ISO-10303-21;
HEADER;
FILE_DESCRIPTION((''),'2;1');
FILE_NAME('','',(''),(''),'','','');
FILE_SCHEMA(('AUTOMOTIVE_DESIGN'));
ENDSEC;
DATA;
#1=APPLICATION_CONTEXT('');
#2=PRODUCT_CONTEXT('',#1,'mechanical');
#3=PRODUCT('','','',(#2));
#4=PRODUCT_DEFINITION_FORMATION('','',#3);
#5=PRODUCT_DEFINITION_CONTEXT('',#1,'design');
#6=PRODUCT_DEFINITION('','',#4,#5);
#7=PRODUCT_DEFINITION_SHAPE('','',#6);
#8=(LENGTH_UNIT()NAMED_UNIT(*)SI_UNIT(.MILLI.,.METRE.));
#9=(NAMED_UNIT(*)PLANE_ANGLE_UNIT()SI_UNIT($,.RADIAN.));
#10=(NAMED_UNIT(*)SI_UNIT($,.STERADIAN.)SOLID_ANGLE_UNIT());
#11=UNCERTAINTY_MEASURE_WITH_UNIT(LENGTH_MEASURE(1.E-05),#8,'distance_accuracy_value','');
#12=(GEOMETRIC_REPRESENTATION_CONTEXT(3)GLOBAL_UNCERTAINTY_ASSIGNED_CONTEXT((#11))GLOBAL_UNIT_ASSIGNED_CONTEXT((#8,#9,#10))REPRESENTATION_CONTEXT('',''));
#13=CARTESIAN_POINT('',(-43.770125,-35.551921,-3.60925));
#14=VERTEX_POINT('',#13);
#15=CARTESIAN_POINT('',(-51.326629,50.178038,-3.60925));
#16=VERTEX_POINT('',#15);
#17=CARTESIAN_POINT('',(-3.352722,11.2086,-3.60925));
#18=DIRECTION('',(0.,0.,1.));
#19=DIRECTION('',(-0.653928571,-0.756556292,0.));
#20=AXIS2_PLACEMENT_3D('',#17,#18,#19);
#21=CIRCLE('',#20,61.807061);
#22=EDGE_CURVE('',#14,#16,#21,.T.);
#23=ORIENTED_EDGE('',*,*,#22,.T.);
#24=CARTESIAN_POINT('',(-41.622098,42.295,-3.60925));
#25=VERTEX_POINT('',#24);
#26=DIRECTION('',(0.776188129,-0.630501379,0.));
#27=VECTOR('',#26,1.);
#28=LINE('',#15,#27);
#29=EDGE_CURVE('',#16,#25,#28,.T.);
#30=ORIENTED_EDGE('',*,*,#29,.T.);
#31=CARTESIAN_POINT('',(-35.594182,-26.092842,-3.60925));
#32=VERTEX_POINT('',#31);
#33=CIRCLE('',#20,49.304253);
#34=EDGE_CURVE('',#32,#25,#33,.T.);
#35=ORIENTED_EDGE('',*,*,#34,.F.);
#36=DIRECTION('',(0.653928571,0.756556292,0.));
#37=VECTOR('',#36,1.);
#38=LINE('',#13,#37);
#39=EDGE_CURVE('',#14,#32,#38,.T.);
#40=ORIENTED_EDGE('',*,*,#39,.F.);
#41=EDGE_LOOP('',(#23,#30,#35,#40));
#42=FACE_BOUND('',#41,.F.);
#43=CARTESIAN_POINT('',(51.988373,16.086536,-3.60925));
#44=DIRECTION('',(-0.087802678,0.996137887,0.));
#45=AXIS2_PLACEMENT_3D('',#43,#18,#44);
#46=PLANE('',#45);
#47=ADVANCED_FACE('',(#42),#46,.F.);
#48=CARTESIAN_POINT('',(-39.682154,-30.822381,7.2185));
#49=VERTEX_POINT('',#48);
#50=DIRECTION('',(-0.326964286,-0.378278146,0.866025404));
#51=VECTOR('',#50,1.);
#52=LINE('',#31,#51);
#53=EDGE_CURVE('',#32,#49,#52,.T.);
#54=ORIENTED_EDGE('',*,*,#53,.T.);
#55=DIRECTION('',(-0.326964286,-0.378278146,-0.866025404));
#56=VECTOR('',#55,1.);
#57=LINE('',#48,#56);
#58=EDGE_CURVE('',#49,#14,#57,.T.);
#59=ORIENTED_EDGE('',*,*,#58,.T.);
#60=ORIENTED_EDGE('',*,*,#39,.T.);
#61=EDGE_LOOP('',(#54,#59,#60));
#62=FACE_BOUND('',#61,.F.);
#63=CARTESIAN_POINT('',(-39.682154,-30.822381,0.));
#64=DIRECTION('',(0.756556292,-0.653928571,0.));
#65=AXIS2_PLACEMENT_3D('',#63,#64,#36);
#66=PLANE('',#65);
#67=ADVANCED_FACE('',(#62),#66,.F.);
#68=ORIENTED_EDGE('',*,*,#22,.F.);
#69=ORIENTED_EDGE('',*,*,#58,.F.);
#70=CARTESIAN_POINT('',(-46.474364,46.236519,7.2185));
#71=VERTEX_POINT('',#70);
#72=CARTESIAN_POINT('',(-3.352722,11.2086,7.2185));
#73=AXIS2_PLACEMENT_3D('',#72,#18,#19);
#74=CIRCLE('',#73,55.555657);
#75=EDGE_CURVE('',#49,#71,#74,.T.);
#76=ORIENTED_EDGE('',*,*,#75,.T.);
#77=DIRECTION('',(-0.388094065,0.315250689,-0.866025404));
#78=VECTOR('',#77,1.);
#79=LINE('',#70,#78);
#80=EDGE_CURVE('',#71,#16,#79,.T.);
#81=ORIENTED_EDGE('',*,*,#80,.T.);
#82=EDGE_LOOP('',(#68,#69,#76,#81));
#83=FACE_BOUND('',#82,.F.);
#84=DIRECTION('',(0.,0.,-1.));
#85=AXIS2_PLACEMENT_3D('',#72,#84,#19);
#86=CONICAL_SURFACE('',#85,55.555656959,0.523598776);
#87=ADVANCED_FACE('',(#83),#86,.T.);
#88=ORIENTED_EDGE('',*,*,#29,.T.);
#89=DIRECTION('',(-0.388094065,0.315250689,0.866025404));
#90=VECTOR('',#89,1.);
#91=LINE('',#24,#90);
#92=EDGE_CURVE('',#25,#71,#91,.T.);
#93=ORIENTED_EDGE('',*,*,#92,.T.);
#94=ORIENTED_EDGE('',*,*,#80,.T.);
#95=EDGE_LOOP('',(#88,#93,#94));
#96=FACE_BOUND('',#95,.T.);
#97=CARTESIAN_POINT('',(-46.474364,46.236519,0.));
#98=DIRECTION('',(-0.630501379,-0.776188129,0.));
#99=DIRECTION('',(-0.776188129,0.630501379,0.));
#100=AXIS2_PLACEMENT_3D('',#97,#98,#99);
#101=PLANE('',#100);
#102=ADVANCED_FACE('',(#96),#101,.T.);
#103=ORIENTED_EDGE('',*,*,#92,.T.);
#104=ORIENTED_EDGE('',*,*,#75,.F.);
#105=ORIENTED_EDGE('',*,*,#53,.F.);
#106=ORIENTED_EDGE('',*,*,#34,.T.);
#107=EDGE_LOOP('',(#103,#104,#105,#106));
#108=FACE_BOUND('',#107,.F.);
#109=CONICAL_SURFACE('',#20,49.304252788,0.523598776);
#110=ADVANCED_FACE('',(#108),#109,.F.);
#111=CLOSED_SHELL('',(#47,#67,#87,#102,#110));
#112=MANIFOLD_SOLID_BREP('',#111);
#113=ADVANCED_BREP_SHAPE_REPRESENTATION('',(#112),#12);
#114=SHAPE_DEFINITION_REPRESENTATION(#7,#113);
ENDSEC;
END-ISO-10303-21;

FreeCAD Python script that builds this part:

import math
import FreeCAD as App
import Part
import Sketcher
from FreeCAD import Vector
Q = App.Units.Quantity


def add_polygon(sketch, points):
    """Adds a closed chain of lines whose ends are joined by coincident constraints."""
    first, n = sketch.GeometryCount, len(points)
    for a, b in zip(points, points[1:] + points[:1]):
        sketch.addGeometry(Part.LineSegment(App.Vector(*a, 0), App.Vector(*b, 0)), False)
    for i in range(n):
        sketch.addConstraint(Sketcher.Constraint("Coincident", first + i, 2, first + (i + 1) % n, 1))

doc = App.newDocument("Part")
body = doc.addObject("PartDesign::Body", "Body")

sketch1 = doc.addObject("Sketcher::SketchObject", "Sketch")
body.addObject(sketch1)
sketch1.Placement = App.Placement(Vector(-7.464296, 6.451756, 0), App.Rotation(Vector(0.653928571, 0.756556292, 0), Vector(0, 0, 0.999999999), Vector(0.756556292, -0.653928571, 0), "ZXY"))
add_polygon(sketch1, [(-43, -4), (-49, 7), (-56, -4)])
sketch1.addConstraint(Sketcher.Constraint("Horizontal", 2))
sketch1.addConstraint(Sketcher.Constraint("Equal", 0, 1))
sketch1.addConstraint(Sketcher.Constraint("Angle", 0, Q("120 deg")))
sketch1.addConstraint(Sketcher.Constraint("DistanceX", 2, 1, 2, 2, Q("12.502808 mm")))
sketch1.addConstraint(Sketcher.Constraint("DistanceY", -1, 1, 0, 2, Q("7.2185 mm")))
sketch1.addConstraint(Sketcher.Constraint("DistanceX", 0, 2, -1, 1, Q("49.268161 mm")))

sketch2 = doc.addObject("Sketcher::SketchObject", "Sketch001")
body.addObject(sketch2)
sketch2.AttachmentSupport = (doc.XY_Plane, [""])
sketch2.MapMode = "FlatFace"
sketch2.addGeometry(Part.ArcOfCircle(Part.Circle(Vector(-3, 11, 0), Vector(0, 0, 1), 56), math.radians(-131), math.radians(141)), False)
sketch2.addConstraint(Sketcher.Constraint("Radius", 0, Q("55.555657 mm")))
sketch2.addConstraint(Sketcher.Constraint("DistanceY", -1, 1, 0, 3, Q("11.2086 mm")))
sketch2.addConstraint(Sketcher.Constraint("DistanceY", 0, 1, 0, 2, Q("77.0589 mm")))
sketch2.addConstraint(Sketcher.Constraint("DistanceY", 0, 1, -1, 1, Q("30.822381 mm")))
sketch2.addConstraint(Sketcher.Constraint("DistanceX", 0, 3, -1, 1, Q("3.352722 mm")))
doc.recompute()

additivepipe = doc.addObject("PartDesign::AdditivePipe", "AdditivePipe")
body.addObject(additivepipe)
additivepipe.Profile = sketch1
additivepipe.Spine = (sketch2, ["Edge1"])

doc.recompute()
